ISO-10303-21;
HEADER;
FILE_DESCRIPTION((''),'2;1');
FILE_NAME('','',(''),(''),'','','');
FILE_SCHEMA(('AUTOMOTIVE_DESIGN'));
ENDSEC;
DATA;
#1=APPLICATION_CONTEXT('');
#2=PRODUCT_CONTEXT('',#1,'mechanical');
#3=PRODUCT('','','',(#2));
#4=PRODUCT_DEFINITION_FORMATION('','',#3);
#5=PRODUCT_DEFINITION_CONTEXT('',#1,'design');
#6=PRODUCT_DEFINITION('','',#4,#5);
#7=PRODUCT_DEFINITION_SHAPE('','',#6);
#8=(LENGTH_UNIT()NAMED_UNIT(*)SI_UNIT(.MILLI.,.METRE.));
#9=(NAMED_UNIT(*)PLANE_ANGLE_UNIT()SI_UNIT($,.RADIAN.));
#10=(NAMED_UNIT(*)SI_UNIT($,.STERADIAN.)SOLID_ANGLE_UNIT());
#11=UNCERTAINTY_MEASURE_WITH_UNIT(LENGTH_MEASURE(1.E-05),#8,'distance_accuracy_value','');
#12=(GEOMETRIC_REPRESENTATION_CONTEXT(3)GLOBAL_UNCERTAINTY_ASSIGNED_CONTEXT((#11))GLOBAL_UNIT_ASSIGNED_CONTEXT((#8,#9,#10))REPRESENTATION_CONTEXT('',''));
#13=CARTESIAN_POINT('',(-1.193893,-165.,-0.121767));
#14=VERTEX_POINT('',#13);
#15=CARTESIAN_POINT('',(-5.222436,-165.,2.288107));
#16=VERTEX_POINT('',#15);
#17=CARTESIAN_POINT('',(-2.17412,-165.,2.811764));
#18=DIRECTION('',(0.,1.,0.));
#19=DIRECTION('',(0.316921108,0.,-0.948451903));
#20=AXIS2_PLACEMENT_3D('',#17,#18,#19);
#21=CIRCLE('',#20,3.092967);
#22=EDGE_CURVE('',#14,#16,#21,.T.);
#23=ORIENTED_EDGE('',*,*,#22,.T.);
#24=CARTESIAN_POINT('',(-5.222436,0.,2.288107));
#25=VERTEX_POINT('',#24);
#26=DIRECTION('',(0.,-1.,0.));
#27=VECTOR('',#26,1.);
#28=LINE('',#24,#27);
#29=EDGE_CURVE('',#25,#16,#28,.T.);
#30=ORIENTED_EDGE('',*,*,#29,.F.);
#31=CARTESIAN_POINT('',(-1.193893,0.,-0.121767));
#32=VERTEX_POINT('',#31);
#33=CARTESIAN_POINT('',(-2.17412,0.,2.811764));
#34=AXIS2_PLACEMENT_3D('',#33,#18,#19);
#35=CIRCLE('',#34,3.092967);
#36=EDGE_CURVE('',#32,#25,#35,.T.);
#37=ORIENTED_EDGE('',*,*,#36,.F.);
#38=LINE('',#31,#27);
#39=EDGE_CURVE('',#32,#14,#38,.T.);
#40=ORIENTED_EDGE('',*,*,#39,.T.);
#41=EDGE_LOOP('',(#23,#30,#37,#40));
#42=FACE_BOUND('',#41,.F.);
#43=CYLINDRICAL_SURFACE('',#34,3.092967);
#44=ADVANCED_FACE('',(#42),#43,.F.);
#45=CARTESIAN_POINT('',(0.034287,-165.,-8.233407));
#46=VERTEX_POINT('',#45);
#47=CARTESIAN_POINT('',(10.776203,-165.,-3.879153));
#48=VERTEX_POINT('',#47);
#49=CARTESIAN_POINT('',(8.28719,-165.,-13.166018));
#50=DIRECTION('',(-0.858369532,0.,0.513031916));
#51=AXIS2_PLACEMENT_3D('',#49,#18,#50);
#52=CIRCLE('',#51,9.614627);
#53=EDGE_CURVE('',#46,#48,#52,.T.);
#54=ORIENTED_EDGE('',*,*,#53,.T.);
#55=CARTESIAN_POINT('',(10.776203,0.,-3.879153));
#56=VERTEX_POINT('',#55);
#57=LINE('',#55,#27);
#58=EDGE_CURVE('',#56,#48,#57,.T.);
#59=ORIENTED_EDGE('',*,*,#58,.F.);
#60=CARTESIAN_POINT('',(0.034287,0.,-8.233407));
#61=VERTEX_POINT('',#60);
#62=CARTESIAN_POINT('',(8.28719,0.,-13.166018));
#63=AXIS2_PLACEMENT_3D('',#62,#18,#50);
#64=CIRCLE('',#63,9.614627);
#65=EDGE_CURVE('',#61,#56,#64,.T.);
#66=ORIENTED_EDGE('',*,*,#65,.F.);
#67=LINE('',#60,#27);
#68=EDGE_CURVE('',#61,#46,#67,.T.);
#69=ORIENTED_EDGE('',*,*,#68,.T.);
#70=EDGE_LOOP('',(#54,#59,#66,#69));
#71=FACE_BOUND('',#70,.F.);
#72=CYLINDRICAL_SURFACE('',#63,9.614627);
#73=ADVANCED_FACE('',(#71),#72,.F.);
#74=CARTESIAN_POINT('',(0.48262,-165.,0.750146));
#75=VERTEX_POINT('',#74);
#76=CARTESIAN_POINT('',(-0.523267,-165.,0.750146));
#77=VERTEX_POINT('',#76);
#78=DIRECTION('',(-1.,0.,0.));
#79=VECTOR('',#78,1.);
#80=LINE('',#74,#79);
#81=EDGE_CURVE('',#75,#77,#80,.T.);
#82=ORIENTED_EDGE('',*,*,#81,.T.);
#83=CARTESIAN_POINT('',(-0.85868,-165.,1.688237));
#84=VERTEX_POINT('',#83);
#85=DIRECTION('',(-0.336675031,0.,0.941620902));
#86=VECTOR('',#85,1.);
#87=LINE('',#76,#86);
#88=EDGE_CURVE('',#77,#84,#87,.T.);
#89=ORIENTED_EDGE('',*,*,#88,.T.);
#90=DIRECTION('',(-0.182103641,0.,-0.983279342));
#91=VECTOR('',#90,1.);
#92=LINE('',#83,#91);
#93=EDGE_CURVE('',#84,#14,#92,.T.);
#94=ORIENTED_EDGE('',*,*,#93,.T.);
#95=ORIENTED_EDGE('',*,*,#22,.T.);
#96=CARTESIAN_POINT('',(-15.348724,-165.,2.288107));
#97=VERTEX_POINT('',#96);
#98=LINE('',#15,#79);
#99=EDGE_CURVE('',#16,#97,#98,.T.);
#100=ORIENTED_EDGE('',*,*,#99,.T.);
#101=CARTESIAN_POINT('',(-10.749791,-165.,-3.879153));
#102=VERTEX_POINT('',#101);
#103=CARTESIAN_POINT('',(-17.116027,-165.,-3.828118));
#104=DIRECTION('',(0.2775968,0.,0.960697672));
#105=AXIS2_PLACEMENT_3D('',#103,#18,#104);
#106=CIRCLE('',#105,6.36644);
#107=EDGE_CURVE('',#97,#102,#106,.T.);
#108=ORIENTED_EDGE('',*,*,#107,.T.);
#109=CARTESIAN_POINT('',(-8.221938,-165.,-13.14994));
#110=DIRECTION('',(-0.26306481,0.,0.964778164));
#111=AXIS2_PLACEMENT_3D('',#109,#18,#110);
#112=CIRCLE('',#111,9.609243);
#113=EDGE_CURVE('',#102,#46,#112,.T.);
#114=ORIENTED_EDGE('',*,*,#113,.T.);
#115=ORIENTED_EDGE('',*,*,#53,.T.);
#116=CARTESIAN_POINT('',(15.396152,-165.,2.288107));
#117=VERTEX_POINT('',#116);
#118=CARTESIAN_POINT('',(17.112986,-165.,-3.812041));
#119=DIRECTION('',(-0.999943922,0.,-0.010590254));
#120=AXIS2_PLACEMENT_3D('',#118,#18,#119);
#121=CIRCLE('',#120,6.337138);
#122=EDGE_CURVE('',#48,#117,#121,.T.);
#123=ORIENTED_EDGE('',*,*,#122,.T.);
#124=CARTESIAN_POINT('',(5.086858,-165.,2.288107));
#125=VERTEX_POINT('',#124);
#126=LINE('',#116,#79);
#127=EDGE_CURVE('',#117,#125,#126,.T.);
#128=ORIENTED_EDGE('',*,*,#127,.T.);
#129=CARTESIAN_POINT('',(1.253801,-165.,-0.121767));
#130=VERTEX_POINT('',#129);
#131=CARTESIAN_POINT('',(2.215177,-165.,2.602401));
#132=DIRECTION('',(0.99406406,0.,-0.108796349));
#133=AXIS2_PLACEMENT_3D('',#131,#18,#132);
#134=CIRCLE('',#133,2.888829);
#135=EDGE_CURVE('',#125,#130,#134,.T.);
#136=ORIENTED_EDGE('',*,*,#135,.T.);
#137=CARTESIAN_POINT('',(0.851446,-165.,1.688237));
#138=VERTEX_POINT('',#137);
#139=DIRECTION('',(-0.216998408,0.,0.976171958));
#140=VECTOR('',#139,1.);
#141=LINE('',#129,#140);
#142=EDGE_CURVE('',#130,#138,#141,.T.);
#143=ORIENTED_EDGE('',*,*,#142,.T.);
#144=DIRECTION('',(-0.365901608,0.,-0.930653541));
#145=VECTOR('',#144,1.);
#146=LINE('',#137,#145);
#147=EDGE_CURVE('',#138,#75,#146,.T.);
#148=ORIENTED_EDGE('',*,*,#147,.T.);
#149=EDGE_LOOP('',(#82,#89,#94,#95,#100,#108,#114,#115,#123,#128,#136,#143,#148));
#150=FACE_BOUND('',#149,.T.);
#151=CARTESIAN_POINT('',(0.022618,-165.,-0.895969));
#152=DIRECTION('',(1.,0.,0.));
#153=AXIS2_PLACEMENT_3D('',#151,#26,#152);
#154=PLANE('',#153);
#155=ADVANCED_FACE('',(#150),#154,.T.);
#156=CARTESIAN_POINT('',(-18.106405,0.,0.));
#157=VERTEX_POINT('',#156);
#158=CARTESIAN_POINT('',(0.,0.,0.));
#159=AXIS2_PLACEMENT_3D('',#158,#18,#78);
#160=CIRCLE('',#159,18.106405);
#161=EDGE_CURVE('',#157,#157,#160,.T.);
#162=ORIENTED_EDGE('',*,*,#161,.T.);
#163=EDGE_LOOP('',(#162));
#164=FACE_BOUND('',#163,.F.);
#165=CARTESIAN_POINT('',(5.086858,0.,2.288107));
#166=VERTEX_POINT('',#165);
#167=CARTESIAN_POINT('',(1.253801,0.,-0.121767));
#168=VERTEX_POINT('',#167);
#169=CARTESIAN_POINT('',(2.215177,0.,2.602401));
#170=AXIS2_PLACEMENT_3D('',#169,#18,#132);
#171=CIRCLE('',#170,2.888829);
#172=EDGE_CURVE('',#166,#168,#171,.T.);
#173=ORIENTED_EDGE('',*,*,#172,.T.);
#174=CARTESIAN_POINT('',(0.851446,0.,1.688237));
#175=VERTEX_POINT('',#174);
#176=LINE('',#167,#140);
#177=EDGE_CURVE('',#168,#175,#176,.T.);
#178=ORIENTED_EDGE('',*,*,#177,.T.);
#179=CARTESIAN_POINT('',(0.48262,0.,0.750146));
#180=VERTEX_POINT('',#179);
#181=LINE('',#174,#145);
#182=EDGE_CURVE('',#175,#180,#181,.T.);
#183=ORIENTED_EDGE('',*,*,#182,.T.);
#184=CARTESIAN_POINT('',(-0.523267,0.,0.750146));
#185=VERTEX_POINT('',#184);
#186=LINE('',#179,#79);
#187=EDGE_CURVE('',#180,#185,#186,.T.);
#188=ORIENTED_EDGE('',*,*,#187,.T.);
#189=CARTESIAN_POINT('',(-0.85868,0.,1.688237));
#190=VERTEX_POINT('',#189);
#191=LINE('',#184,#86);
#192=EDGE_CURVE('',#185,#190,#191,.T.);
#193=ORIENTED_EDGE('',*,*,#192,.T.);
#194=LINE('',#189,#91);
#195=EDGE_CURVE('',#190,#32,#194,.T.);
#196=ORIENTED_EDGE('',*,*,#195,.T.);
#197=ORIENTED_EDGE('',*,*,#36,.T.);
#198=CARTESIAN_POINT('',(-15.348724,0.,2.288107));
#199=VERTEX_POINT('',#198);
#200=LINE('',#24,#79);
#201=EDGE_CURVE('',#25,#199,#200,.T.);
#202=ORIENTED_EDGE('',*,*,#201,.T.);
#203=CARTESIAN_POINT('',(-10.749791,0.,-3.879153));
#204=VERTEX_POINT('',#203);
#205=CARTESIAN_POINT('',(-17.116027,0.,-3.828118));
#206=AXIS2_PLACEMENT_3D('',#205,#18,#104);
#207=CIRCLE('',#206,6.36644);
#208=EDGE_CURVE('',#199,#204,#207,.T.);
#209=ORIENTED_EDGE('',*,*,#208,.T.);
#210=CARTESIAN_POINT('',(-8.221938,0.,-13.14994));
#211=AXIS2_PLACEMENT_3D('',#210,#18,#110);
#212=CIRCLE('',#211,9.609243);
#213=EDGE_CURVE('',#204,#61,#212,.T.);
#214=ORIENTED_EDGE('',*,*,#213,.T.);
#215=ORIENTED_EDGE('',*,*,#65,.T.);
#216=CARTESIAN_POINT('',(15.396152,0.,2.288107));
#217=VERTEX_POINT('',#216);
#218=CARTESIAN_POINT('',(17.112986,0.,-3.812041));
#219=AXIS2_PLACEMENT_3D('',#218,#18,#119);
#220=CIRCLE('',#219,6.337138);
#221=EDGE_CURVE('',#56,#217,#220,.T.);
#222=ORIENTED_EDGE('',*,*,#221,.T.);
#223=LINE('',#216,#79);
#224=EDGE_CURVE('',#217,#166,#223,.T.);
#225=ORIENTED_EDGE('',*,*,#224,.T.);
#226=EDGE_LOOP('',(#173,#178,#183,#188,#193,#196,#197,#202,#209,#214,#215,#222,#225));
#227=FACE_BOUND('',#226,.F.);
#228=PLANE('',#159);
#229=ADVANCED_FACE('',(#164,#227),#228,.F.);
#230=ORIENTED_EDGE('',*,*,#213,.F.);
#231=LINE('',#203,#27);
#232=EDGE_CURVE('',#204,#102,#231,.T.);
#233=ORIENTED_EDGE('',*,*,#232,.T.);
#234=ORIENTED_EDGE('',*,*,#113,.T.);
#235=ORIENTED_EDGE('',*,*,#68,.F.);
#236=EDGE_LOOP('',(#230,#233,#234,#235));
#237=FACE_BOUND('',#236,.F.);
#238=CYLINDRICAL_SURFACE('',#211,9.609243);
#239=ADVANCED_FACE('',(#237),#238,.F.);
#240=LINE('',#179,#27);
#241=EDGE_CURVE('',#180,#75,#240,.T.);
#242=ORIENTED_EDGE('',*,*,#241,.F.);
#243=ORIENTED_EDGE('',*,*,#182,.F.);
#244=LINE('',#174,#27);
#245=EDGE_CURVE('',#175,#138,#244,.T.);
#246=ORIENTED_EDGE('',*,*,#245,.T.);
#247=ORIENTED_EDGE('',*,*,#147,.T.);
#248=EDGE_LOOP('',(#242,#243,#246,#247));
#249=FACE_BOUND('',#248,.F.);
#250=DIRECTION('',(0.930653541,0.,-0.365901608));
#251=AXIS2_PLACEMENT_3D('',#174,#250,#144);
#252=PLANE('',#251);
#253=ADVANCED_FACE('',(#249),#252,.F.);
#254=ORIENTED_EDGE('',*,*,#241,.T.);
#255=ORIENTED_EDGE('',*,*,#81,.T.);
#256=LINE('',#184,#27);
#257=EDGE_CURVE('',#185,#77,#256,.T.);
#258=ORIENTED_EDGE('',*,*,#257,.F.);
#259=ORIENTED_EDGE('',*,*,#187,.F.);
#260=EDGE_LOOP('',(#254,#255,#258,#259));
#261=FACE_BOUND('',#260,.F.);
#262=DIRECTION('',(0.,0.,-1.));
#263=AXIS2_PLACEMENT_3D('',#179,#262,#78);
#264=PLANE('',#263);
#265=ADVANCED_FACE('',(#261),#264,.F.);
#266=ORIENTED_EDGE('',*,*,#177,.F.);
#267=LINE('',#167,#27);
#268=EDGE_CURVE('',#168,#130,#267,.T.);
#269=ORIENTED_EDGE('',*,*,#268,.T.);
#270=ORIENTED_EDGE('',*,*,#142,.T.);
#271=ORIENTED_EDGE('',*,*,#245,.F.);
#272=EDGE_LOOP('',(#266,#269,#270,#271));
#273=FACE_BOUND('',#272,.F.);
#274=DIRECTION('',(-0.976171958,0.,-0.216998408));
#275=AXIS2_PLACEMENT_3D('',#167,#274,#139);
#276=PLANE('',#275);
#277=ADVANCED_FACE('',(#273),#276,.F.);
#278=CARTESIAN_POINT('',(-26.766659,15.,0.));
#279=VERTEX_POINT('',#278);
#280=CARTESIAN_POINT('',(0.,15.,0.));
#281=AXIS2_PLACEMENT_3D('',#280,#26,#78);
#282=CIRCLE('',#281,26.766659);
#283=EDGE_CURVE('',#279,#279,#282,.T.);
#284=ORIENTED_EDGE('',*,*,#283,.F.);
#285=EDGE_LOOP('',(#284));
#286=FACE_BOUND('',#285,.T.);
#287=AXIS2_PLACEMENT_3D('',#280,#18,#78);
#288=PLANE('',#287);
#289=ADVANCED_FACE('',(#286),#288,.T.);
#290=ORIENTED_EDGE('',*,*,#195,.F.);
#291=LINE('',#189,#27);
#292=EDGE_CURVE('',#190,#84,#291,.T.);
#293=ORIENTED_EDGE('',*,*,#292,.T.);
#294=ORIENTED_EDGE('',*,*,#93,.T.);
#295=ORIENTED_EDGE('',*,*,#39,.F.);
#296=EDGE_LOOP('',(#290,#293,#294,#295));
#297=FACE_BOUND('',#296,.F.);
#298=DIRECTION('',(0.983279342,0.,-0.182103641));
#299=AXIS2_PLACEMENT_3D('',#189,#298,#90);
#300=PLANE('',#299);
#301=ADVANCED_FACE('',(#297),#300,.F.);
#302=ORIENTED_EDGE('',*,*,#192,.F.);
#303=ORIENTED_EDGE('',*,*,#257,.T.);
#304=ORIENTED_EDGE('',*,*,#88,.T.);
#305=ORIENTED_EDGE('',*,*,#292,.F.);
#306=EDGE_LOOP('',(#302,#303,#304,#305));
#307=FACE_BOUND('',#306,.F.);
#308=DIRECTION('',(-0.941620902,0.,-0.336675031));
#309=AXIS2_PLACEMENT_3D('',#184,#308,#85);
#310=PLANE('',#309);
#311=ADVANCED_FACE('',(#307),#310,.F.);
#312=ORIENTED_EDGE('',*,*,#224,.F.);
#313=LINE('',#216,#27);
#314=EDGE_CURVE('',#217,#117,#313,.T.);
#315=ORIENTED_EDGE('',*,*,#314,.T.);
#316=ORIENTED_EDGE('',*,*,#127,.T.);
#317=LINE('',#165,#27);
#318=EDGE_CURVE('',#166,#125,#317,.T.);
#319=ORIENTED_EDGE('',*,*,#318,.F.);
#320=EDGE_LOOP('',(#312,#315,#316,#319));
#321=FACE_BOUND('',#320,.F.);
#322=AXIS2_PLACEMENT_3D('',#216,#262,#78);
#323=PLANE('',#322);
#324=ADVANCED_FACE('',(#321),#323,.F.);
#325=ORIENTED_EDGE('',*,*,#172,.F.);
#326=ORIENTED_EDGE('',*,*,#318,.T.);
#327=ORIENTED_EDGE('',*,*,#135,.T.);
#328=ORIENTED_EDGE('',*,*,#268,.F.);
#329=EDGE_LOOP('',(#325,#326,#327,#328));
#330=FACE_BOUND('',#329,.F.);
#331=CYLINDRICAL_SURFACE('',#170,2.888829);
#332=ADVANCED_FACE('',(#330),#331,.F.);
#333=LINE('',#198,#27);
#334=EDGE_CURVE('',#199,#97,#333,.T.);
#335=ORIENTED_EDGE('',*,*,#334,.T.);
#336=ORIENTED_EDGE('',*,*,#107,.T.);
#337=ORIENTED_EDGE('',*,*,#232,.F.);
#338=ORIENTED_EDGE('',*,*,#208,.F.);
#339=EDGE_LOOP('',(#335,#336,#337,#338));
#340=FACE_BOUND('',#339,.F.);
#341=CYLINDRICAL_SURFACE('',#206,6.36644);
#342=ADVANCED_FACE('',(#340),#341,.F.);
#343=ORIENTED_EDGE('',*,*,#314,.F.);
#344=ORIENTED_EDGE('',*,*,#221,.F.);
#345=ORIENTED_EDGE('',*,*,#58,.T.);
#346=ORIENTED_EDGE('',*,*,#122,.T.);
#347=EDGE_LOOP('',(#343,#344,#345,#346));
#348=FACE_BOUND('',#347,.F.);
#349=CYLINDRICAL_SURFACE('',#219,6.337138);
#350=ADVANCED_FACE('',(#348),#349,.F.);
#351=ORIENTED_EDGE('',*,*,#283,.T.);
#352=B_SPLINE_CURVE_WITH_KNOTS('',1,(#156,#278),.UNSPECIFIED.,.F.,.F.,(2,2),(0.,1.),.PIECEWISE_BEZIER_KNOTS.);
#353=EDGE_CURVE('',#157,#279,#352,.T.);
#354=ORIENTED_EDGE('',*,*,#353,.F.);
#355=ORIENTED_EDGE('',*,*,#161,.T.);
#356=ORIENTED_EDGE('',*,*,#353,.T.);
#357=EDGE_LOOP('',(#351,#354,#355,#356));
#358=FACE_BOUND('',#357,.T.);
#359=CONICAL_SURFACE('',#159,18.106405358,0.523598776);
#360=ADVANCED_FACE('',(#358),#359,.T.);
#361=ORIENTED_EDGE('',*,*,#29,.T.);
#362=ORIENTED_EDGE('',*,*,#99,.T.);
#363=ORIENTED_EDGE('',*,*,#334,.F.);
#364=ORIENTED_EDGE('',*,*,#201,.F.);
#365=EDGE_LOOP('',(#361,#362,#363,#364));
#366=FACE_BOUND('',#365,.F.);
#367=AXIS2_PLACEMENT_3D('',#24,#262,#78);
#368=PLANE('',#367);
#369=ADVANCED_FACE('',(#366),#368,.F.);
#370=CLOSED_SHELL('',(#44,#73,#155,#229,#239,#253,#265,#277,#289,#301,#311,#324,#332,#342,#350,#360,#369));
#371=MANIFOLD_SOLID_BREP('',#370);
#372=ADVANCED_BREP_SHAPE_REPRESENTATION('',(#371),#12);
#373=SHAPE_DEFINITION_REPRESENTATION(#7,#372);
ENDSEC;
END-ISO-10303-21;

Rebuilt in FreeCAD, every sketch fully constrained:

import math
import FreeCAD as App
import Part
import Sketcher
from FreeCAD import Vector

doc = App.newDocument("Part")
body = doc.addObject("PartDesign::Body", "Body")

sketch1 = body.newObject("Sketcher::SketchObject", "Sketch")
sketch1.AttachmentSupport = (doc.getObject("XZ_Plane"), [""])
sketch1.MapMode = "FlatFace"
sketch1.addGeometry([
    Part.LineSegment(Vector(-5.2, 2.3, 0), Vector(-15.3, 2.3, 0)),
    Part.ArcOfCircle(Part.Circle(Vector(-17.1, -3.8, 0), Vector(0, 0, 1), 6.4), math.radians(0), math.radians(74)),
    Part.ArcOfCircle(Part.Circle(Vector(-8.2, -13.1, 0), Vector(0, 0, 1), 9.6), math.radians(31), math.radians(105)),
    Part.ArcOfCircle(Part.Circle(Vector(8.3, -13.2, 0), Vector(0, 0, 1), 9.6), math.radians(75), math.radians(149)),
    Part.ArcOfCircle(Part.Circle(Vector(17.1, -3.8, 0), Vector(0, 0, 1), 6.3), math.radians(106), math.radians(181)),
    Part.LineSegment(Vector(15.4, 2.3, 0), Vector(5.1, 2.3, 0)),
    Part.ArcOfCircle(Part.Circle(Vector(2.2, 2.6, 0), Vector(0, 0, 1), 2.9), math.radians(-109), math.radians(-6)),
    Part.LineSegment(Vector(1.3, -0.1, 0), Vector(0.9, 1.7, 0)),
    Part.LineSegment(Vector(0.9, 1.7, 0), Vector(0.5, 0.8, 0)),
    Part.LineSegment(Vector(0.5, 0.8, 0), Vector(-0.5, 0.8, 0)),
    Part.LineSegment(Vector(-0.5, 0.8, 0), Vector(-0.9, 1.7, 0)),
    Part.LineSegment(Vector(-0.9, 1.7, 0), Vector(-1.2, -0.1, 0)),
    Part.ArcOfCircle(Part.Circle(Vector(-2.2, 2.8, 0), Vector(0, 0, 1), 3.1), math.radians(-170), math.radians(-72)),
], False)
sketch1.addConstraint([
    Sketcher.Constraint("Coincident", 0, 2, 1, 2),
    Sketcher.Constraint("Coincident", 1, 1, 2, 2),
    Sketcher.Constraint("Coincident", 2, 1, 3, 2),
    Sketcher.Constraint("Coincident", 3, 1, 4, 2),
    Sketcher.Constraint("Coincident", 4, 1, 5, 1),
    Sketcher.Constraint("Coincident", 5, 2, 6, 2),
    Sketcher.Constraint("Coincident", 6, 1, 7, 1),
    Sketcher.Constraint("Coincident", 7, 2, 8, 1),
    Sketcher.Constraint("Coincident", 8, 2, 9, 1),
    Sketcher.Constraint("Coincident", 9, 2, 10, 1),
    Sketcher.Constraint("Coincident", 10, 2, 11, 1),
    Sketcher.Constraint("Coincident", 11, 2, 12, 2),
    Sketcher.Constraint("Coincident", 12, 1, 0, 1),
    Sketcher.Constraint("Horizontal", 0),
    Sketcher.Constraint("Horizontal", 5),
    Sketcher.Constraint("Horizontal", 9),
    Sketcher.Constraint("Horizontal", 1, 1, 3, 1),
    Sketcher.Constraint("Horizontal", 0, 2, 4, 1),
    Sketcher.Constraint("Horizontal", 7, 2, 10, 2),
    Sketcher.Constraint("Horizontal", 6, 1, 11, 2),
    Sketcher.Constraint("Radius", 1, 6.36644),
    Sketcher.Constraint("Radius", 4, 6.337138),
    Sketcher.Constraint("Radius", 6, 2.888829),
    Sketcher.Constraint("Radius", 2, 9.609243),
    Sketcher.Constraint("Radius", 3, 9.614627),
    Sketcher.Constraint("Radius", 12, 3.092967),
    Sketcher.Constraint("DistanceX", 0, 2, 0, 1, 10.126288),
    Sketcher.Constraint("DistanceY", -1, 1, 6, 3, 2.602401),
    Sketcher.Constraint("DistanceX", -1, 1, 6, 1, 1.253801),
    Sketcher.Constraint("DistanceY", 3, 3, 1, 3, 9.3379),
    Sketcher.Constraint("DistanceY", 2, 3, 4, 3, 9.337899),
    Sketcher.Constraint("DistanceX", 0, 2, 6, 3, 17.563901),
    Sketcher.Constraint("DistanceX", 10, 2, 8, 2, 1.3413),
    Sketcher.Constraint("Distance", 8, 1.007991),
    Sketcher.Constraint("Distance", 10, 0.996251),
    Sketcher.Constraint("DistanceX", 5, 2, 5, 1, 10.309294),
    Sketcher.Constraint("DistanceX", 9, 2, 9, 1, 1.005887),
    Sketcher.Constraint("DistanceY", 2, 3, -1, 1, 13.14994),
    Sketcher.Constraint("DistanceX", -1, 1, 3, 3, 8.28719),
    Sketcher.Constraint("DistanceX", 12, 3, -1, 1, 2.17412),
    Sketcher.Constraint("DistanceX", 1, 1, -1, 1, 10.749791),
    Sketcher.Constraint("DistanceX", -1, 1, 5, 2, 5.086858),
    Sketcher.Constraint("DistanceX", -1, 1, 8, 2, 0.48262),
    Sketcher.Constraint("DistanceX", 1, 3, 2, 3, 8.894089),
    Sketcher.Constraint("DistanceY", 7, 2, 5, 2, 0.59987),
])
pad1 = body.newObject("PartDesign::Pad", "Pad")
pad1.Profile = sketch1
pad1.Length = 165

sketch2 = body.newObject("Sketcher::SketchObject", "Sketch001")
sketch2.AttachmentSupport = (doc.getObject("XZ_Plane"), [""])
sketch2.MapMode = "FlatFace"
sketch2.addGeometry(Part.Circle(Vector(0, 0, 0), Vector(0, 0, 1), 18), False)
sketch2.addConstraint([
    Sketcher.Constraint("Coincident", 0, 3, -1, 1),
    Sketcher.Constraint("Diameter", 0, 36.212811),
])
pad2 = body.newObject("PartDesign::Pad", "Pad001")
pad2.Profile = sketch2
pad2.Length = 15
pad2.Reversed = True
pad2.TaperAngle = 30

doc.recompute()
